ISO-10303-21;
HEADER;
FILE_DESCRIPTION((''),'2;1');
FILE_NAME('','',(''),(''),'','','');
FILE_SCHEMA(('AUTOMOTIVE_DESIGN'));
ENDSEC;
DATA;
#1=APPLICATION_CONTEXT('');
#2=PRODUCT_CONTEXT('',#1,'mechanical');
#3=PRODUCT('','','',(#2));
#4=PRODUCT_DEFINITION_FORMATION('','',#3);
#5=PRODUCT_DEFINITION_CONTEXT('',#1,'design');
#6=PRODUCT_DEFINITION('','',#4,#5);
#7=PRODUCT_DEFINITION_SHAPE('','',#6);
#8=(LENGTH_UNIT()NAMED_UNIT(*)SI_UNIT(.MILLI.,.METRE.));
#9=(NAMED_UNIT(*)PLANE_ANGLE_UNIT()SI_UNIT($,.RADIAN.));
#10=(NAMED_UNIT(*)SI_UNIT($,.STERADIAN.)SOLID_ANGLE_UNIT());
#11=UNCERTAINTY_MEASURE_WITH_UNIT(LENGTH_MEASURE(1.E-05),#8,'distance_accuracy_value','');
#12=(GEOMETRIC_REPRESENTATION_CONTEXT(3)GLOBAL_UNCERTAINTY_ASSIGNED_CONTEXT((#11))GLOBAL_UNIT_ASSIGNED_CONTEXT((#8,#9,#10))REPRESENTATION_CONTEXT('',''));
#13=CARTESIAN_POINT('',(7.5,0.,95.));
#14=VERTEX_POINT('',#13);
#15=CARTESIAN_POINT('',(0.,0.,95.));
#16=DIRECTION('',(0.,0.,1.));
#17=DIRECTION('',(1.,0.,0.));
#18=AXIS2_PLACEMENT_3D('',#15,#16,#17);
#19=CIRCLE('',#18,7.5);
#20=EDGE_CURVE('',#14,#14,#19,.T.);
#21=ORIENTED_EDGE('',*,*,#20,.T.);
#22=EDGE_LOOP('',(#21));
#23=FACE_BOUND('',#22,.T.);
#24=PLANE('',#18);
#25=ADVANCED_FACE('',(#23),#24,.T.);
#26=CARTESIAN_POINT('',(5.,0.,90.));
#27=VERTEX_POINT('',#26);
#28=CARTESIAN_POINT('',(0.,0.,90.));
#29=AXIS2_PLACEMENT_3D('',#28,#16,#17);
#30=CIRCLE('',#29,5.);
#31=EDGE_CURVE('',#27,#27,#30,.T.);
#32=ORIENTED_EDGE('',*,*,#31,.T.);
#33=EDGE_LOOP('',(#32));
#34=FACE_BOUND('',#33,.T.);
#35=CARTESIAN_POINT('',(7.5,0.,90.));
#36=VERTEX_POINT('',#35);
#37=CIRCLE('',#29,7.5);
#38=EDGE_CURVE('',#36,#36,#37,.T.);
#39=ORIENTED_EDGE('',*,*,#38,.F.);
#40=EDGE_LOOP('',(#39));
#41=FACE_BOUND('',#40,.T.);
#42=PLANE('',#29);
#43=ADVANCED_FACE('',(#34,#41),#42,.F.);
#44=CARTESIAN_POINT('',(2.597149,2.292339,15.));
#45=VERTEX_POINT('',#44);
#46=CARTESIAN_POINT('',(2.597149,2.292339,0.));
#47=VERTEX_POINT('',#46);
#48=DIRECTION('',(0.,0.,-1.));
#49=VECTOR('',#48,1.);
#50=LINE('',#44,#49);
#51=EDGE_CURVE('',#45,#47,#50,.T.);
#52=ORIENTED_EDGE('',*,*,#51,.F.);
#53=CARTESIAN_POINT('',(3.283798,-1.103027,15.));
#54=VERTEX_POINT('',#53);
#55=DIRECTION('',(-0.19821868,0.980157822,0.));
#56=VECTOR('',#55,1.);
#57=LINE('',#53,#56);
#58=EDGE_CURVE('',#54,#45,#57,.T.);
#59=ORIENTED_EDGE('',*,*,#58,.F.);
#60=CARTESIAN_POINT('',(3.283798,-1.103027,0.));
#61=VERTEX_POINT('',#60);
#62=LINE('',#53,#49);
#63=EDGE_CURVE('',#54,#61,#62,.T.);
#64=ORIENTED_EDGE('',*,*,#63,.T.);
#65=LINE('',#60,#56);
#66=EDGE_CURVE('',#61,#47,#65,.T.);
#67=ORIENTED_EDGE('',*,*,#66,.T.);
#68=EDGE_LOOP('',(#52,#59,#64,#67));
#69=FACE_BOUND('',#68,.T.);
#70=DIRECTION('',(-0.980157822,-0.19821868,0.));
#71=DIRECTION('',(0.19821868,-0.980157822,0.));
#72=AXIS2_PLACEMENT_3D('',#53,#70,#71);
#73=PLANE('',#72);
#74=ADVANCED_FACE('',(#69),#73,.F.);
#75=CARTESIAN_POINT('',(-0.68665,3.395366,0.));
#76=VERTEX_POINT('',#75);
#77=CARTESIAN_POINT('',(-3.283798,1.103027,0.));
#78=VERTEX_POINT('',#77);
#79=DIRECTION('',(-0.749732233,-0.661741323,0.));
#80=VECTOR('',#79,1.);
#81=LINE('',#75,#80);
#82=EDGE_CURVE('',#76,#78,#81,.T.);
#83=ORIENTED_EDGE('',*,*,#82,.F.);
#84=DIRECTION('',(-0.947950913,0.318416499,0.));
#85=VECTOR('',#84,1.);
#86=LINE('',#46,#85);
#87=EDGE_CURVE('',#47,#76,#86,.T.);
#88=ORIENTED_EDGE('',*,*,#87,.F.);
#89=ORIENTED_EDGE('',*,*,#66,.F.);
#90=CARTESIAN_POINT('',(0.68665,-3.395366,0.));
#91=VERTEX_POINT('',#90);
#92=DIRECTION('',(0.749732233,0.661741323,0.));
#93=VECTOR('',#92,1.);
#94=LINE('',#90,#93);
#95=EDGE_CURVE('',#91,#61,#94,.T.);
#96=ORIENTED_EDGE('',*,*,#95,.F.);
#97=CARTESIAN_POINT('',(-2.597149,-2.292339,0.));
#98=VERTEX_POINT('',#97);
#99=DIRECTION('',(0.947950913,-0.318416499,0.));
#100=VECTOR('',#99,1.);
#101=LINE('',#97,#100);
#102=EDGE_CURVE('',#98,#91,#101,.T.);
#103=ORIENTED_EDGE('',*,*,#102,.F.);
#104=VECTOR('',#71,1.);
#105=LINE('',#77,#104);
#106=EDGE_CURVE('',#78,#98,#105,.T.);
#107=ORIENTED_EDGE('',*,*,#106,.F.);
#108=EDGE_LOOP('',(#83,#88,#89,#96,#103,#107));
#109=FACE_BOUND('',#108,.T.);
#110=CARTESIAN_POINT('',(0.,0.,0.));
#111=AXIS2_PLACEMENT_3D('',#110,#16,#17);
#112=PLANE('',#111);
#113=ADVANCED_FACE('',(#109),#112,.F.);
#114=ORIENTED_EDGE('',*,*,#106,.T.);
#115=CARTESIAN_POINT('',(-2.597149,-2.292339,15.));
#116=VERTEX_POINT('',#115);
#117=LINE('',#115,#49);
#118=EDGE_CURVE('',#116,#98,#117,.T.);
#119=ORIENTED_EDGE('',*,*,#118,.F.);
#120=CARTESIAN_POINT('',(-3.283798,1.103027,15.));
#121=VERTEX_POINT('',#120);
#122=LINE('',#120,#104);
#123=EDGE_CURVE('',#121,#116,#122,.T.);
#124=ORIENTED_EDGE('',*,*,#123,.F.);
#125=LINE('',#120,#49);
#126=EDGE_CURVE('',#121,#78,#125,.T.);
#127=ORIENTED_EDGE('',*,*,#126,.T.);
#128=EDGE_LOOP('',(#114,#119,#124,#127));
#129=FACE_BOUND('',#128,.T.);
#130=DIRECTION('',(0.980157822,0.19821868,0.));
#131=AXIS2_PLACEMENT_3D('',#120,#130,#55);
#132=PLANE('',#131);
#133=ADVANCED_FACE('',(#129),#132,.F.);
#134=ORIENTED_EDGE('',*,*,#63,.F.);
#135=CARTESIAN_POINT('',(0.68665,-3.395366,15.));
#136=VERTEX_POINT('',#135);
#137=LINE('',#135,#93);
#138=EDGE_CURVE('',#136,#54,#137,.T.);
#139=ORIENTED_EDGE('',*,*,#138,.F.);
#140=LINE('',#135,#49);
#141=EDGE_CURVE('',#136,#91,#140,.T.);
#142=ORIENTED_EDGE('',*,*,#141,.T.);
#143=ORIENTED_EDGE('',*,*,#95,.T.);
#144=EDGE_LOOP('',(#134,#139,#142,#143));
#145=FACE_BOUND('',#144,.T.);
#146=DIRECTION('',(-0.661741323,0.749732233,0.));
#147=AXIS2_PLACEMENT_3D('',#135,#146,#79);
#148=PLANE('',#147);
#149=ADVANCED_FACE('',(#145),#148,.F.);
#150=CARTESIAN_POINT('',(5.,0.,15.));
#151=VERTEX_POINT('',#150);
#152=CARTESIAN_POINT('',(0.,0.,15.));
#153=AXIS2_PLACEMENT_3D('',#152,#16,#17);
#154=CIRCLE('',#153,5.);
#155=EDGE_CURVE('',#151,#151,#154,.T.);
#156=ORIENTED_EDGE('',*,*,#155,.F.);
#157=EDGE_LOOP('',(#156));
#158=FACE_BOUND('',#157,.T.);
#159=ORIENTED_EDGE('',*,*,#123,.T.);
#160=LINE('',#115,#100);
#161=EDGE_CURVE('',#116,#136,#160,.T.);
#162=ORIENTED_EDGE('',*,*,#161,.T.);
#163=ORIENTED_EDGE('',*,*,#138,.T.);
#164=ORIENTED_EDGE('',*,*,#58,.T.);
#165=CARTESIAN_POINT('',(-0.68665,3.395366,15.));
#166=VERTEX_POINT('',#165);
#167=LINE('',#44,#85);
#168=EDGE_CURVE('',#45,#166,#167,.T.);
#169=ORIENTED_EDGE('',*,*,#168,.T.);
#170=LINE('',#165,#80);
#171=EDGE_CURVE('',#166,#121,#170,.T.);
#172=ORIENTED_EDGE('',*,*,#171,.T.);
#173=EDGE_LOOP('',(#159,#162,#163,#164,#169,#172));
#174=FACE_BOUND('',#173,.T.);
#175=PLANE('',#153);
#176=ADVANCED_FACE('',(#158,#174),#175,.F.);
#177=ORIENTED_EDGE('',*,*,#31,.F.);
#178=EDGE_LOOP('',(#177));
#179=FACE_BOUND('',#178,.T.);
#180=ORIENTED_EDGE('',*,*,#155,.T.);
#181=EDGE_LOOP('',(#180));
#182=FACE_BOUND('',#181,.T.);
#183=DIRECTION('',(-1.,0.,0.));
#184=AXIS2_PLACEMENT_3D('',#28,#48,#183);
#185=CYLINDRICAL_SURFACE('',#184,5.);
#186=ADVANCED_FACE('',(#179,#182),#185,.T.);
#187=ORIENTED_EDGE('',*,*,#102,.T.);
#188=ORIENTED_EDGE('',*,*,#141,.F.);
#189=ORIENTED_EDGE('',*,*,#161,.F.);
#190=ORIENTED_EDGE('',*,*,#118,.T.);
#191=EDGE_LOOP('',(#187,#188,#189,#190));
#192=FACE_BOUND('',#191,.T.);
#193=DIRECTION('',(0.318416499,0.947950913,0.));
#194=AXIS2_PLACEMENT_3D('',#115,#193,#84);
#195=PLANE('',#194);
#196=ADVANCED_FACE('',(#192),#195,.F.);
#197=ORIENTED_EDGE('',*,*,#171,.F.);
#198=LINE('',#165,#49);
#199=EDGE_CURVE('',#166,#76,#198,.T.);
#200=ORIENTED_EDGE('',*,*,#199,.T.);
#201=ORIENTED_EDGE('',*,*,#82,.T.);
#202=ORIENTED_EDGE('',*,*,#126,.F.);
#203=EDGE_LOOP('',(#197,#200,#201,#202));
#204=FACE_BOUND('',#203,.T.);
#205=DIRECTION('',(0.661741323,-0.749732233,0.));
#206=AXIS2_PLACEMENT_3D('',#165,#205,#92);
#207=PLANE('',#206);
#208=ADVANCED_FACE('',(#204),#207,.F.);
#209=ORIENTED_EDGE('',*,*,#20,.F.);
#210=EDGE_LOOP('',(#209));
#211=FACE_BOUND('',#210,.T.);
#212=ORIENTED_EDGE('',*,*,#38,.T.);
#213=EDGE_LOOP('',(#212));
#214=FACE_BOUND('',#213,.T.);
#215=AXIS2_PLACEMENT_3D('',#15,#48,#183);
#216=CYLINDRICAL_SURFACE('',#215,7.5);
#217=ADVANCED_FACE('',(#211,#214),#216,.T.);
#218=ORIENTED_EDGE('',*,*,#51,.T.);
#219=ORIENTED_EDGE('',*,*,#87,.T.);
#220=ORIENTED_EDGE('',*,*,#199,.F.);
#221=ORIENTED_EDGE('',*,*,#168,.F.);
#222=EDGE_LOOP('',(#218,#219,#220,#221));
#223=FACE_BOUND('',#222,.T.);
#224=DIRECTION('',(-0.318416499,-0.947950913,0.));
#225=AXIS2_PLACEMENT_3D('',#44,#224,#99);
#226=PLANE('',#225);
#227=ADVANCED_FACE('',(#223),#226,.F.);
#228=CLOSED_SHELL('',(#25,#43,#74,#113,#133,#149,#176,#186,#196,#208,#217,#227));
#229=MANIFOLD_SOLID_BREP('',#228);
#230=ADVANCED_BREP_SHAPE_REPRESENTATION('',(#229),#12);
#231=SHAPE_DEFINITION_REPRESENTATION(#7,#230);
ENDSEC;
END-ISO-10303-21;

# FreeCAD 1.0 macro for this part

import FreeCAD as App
import Part
import Sketcher

V = App.Vector
Q = App.Units.Quantity


def add_polygon(sketch, points):
    """Adds a closed chain of lines whose ends are joined by coincident constraints."""
    first, n = sketch.GeometryCount, len(points)
    for a, b in zip(points, points[1:] + points[:1]):
        sketch.addGeometry(Part.LineSegment(App.Vector(*a, 0), App.Vector(*b, 0)), False)
    for i in range(n):
        sketch.addConstraint(Sketcher.Constraint("Coincident", first + i, 2, first + (i + 1) % n, 1))

doc = App.newDocument("Part")
body = doc.addObject("PartDesign::Body", "Body")

# Sketch on XY plane
sketch1 = body.newObject("Sketcher::SketchObject", "Sketch")
sketch1.AttachmentSupport = (doc.getObject("XY_Plane"), [""])
sketch1.MapMode = "FlatFace"
add_polygon(sketch1, [(-0.7, 3.4), (-3.3, 1.1), (-2.6, -2.3), (0.7, -3.4), (3.3, -1.1), (2.6, 2.3)])  # lines 0-5
sketch1.addConstraint([
    Sketcher.Constraint("Symmetric", 0, 2, 3, 2, -1, 1),
    Sketcher.Constraint("Symmetric", 1, 2, 4, 2, -1, 1),
    Sketcher.Constraint("Symmetric", 2, 2, 5, 2, -1, 1),
    Sketcher.Constraint("Equal", 0, 1),
    Sketcher.Constraint("Equal", 1, 2),
    Sketcher.Constraint("Distance", 0, Q("3.464102 mm")),
    Sketcher.Constraint("DistanceX", 0, 2, -1, 1, Q("3.283798 mm")),
    Sketcher.Constraint("DistanceX", 1, 2, 2, 2, Q("3.283798 mm")),
    Sketcher.Constraint("DistanceX", 2, 2, 4, 2, Q("1.910499 mm")),
])
pad1 = body.newObject("PartDesign::Pad", "Pad")
pad1.Profile = sketch1
pad1.Length = 15

# Sketch on XY plane
sketch2 = body.newObject("Sketcher::SketchObject", "Sketch001")
sketch2.AttachmentSupport = (doc.getObject("XY_Plane"), [""])
sketch2.MapMode = "FlatFace"
sketch2.AttachmentOffset = App.Placement(V(0, 0, 15), App.Rotation())
sketch2.addGeometry(Part.Circle(V(0, 0, 0), V(0, 0, 1), 5), False)
sketch2.addConstraint([
    Sketcher.Constraint("Coincident", 0, 3, -1, 1),
    Sketcher.Constraint("Diameter", 0, Q("10 mm")),
])
pad2 = body.newObject("PartDesign::Pad", "Pad001")
pad2.Profile = sketch2
pad2.Length = 75

# Sketch on XY plane
sketch3 = body.newObject("Sketcher::SketchObject", "Sketch002")
sketch3.AttachmentSupport = (doc.getObject("XY_Plane"), [""])
sketch3.MapMode = "FlatFace"
sketch3.AttachmentOffset = App.Placement(V(0, 0, 90), App.Rotation())
sketch3.addGeometry(Part.Circle(V(0, 0, 0), V(0, 0, 1), 8), False)
sketch3.addConstraint([
    Sketcher.Constraint("Coincident", 0, 3, -1, 1),
    Sketcher.Constraint("Diameter", 0, Q("15 mm")),
])
pad3 = body.newObject("PartDesign::Pad", "Pad002")
pad3.Profile = sketch3
pad3.Length = 5

doc.recompute()
